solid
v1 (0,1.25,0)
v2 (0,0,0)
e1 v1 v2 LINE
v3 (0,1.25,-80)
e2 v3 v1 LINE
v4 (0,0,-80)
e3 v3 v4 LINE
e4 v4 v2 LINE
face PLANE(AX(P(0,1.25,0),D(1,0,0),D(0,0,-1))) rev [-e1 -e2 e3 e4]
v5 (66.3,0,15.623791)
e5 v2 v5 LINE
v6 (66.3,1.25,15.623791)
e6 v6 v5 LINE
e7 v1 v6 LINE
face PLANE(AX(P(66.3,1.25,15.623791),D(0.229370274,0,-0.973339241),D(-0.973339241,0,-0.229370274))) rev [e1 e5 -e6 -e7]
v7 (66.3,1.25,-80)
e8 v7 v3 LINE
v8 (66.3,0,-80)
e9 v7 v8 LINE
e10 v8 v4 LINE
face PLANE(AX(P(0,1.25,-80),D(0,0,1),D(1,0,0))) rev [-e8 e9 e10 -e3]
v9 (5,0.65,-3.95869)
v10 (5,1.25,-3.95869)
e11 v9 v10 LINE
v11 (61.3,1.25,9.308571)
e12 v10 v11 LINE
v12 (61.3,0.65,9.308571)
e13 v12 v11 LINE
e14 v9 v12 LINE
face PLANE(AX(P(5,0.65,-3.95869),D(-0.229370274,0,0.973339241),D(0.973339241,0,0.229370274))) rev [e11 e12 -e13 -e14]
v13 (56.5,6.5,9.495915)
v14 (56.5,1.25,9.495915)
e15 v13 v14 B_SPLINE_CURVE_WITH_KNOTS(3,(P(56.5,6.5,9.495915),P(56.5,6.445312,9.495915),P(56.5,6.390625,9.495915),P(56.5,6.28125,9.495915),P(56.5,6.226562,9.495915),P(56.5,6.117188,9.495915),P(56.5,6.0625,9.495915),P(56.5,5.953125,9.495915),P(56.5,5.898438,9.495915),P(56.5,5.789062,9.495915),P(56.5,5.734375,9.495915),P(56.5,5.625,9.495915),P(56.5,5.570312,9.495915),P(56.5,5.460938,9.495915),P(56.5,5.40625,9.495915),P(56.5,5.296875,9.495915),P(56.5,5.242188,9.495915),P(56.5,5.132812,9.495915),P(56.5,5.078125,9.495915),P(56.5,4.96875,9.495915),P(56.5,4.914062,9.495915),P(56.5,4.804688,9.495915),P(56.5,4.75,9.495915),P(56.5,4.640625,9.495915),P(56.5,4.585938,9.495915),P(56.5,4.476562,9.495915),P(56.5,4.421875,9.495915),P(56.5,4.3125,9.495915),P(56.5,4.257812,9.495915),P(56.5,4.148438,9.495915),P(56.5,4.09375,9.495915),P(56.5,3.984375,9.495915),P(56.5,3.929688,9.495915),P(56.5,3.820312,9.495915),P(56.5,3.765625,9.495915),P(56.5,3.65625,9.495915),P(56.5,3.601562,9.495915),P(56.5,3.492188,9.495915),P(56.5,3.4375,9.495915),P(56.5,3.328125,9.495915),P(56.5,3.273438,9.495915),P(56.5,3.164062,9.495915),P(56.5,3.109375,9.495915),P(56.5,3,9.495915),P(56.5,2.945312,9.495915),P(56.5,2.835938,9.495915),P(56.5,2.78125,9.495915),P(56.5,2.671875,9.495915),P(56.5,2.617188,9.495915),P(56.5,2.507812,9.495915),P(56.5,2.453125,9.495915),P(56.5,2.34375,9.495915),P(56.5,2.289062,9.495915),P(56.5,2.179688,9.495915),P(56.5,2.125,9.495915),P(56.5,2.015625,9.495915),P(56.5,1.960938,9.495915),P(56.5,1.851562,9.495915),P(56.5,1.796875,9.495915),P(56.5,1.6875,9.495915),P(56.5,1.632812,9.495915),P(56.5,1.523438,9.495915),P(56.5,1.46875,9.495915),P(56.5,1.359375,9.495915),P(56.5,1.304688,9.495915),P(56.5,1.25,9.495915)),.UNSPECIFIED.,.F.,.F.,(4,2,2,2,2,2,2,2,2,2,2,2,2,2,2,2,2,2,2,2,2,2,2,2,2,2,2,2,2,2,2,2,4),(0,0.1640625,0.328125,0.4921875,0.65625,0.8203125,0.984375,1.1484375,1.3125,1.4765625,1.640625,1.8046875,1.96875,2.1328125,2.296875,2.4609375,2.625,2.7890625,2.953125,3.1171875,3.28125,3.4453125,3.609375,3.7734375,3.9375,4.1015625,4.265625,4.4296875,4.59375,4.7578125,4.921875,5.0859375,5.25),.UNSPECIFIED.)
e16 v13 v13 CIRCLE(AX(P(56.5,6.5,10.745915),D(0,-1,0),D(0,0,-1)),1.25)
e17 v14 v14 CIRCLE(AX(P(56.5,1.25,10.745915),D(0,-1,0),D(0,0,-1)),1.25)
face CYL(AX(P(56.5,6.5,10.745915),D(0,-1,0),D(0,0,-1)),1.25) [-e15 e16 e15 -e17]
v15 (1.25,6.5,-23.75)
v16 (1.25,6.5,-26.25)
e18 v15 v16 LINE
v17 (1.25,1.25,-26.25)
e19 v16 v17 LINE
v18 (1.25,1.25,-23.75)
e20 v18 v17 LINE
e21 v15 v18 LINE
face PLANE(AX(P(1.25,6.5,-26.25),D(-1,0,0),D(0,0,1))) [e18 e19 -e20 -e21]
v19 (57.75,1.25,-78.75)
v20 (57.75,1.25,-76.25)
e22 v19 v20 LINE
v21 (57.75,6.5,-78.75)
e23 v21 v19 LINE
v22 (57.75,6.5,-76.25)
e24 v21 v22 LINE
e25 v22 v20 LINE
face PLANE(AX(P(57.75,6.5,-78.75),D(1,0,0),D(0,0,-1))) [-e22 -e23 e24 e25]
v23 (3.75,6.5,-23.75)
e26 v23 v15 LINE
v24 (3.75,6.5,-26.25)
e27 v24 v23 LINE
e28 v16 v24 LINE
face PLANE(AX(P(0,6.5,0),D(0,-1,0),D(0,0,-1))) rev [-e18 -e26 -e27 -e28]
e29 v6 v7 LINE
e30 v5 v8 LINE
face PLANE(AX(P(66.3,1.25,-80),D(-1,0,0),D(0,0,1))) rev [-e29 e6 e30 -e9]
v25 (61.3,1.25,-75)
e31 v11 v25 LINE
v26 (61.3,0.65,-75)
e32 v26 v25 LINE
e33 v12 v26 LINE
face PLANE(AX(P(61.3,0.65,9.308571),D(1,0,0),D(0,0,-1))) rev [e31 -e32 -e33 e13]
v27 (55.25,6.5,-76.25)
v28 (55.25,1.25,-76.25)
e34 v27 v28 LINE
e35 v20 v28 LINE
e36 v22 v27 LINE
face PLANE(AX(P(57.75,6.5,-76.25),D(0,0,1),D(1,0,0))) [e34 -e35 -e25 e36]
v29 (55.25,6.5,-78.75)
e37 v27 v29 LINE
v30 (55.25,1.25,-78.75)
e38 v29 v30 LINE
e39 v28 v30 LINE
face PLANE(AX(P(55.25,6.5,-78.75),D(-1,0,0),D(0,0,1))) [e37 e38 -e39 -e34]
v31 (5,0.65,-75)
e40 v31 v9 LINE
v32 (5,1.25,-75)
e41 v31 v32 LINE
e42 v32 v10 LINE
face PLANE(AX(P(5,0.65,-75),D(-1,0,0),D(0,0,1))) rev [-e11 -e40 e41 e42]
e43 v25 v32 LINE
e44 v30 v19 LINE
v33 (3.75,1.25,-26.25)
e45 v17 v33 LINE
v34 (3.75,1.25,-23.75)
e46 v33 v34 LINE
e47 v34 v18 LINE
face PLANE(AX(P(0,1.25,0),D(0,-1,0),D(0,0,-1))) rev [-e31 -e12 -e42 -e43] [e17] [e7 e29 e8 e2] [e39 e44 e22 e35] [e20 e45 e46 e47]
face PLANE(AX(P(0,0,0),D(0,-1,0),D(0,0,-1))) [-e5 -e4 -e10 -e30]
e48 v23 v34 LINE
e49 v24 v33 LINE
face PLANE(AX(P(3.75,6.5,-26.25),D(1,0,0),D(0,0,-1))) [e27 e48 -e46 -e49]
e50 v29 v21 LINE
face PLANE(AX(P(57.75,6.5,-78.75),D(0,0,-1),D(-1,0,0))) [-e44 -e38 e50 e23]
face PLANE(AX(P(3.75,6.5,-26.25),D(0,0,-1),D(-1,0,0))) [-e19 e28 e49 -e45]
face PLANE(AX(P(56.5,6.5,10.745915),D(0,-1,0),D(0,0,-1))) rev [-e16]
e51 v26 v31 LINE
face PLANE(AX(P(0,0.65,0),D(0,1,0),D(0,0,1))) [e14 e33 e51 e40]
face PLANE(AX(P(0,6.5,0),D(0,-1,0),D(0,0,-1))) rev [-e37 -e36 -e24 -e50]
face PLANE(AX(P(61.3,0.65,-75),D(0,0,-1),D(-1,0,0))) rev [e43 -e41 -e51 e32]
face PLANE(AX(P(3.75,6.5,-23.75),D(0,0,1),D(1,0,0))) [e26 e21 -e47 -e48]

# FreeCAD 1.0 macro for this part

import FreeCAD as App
import Part
import Sketcher

V = App.Vector
Q = App.Units.Quantity

doc = App.newDocument("Part")
body = doc.addObject("PartDesign::Body", "Body")

sketch1 = body.newObject("Sketcher::SketchObject", "Sketch")
sketch1.AttachmentSupport = (doc.getObject("XZ_Plane"), [""])
sketch1.MapMode = "FlatFace"
sketch1.addGeometry(Part.LineSegment(V(0, -80, 0), V(0, 0, 0)), False)
sketch1.addGeometry(Part.LineSegment(V(0, 0, 0), V(66, 16, 0)), False)
sketch1.addGeometry(Part.LineSegment(V(66, 16, 0), V(66, -80, 0)), False)
sketch1.addGeometry(Part.LineSegment(V(66, -80, 0), V(0, -80, 0)), False)
sketch1.addConstraint(Sketcher.Constraint("Coincident", 0, 2, 1, 1))
sketch1.addConstraint(Sketcher.Constraint("Coincident", 1, 2, 2, 1))
sketch1.addConstraint(Sketcher.Constraint("Coincident", 2, 2, 3, 1))
sketch1.addConstraint(Sketcher.Constraint("Coincident", 3, 2, 0, 1))
sketch1.addConstraint(Sketcher.Constraint("Vertical", 0))
sketch1.addConstraint(Sketcher.Constraint("Vertical", 2))
sketch1.addConstraint(Sketcher.Constraint("Horizontal", 3))
sketch1.addConstraint(Sketcher.Constraint("Coincident", 0, 2, -1, 1))
sketch1.addConstraint(Sketcher.Constraint("DistanceY", 0, 1, 0, 2, 80.0))
sketch1.addConstraint(Sketcher.Constraint("DistanceX", 3, 2, 3, 1, 66.3))
sketch1.addConstraint(Sketcher.Constraint("Angle", 1, Q("13.26 deg")))
pad1 = body.newObject("PartDesign::Pad", "Pad")
pad1.Profile = sketch1
pad1.Length = 1.25
pad1.Reversed = True

sketch2 = body.newObject("Sketcher::SketchObject", "Sketch001")
sketch2.AttachmentSupport = (doc.getObject("XZ_Plane"), [""])
sketch2.MapMode = "FlatFace"
sketch2.addGeometry(Part.Circle(V(56.5, 10.7, 0), V(0, 0, 1), 1.2), False)
sketch2.addGeometry(Part.LineSegment(V(55.2, -76.2, 0), V(55.2, -78.8, 0)), False)
sketch2.addGeometry(Part.LineSegment(V(55.2, -78.8, 0), V(57.8, -78.8, 0)), False)
sketch2.addGeometry(Part.LineSegment(V(57.8, -78.8, 0), V(57.8, -76.2, 0)), False)
sketch2.addGeometry(Part.LineSegment(V(57.8, -76.2, 0), V(55.2, -76.2, 0)), False)
sketch2.addGeometry(Part.LineSegment(V(1.2, -23.8, 0), V(1.2, -26.2, 0)), False)
sketch2.addGeometry(Part.LineSegment(V(1.2, -26.2, 0), V(3.8, -26.2, 0)), False)
sketch2.addGeometry(Part.LineSegment(V(3.8, -26.2, 0), V(3.8, -23.8, 0)), False)
sketch2.addGeometry(Part.LineSegment(V(3.8, -23.8, 0), V(1.2, -23.8, 0)), False)
sketch2.addConstraint(Sketcher.Constraint("Coincident", 1, 2, 2, 1))
sketch2.addConstraint(Sketcher.Constraint("Coincident", 2, 2, 3, 1))
sketch2.addConstraint(Sketcher.Constraint("Coincident", 3, 2, 4, 1))
sketch2.addConstraint(Sketcher.Constraint("Coincident", 4, 2, 1, 1))
sketch2.addConstraint(Sketcher.Constraint("Coincident", 5, 2, 6, 1))
sketch2.addConstraint(Sketcher.Constraint("Coincident", 6, 2, 7, 1))
sketch2.addConstraint(Sketcher.Constraint("Coincident", 7, 2, 8, 1))
sketch2.addConstraint(Sketcher.Constraint("Coincident", 8, 2, 5, 1))
sketch2.addConstraint(Sketcher.Constraint("Vertical", 1))
sketch2.addConstraint(Sketcher.Constraint("Horizontal", 2))
sketch2.addConstraint(Sketcher.Constraint("Vertical", 3))
sketch2.addConstraint(Sketcher.Constraint("Horizontal", 4))
sketch2.addConstraint(Sketcher.Constraint("Vertical", 5))
sketch2.addConstraint(Sketcher.Constraint("Horizontal", 6))
sketch2.addConstraint(Sketcher.Constraint("Vertical", 7))
sketch2.addConstraint(Sketcher.Constraint("Horizontal", 8))
sketch2.addConstraint(Sketcher.Constraint("Equal", 4, 6))
sketch2.addConstraint(Sketcher.Constraint("Equal", 8, 1))
sketch2.addConstraint(Sketcher.Constraint("Equal", 3, 5))
sketch2.addConstraint(Sketcher.Constraint("Diameter", 0, 2.5))
sketch2.addConstraint(Sketcher.Constraint("DistanceX", 2, 1, 2, 2, 2.5))
sketch2.addConstraint(Sketcher.Constraint("DistanceX", 5, 2, 4, 2, 54.0))
sketch2.addConstraint(Sketcher.Constraint("DistanceY", 4, 2, 5, 2, 50.0))
sketch2.addConstraint(Sketcher.Constraint("DistanceX", -1, 1, 0, 3, 56.5))
sketch2.addConstraint(Sketcher.Constraint("DistanceX", -1, 1, 1, 2, 55.25))
sketch2.addConstraint(Sketcher.Constraint("DistanceY", 1, 2, -1, 1, 78.75))
sketch2.addConstraint(Sketcher.Constraint("DistanceY", -1, 1, 0, 3, 10.745915))
pad2 = body.newObject("PartDesign::Pad", "Pad001")
pad2.Profile = sketch2
pad2.Length = 6.5
pad2.Reversed = True

sketch3 = body.newObject("Sketcher::SketchObject", "Sketch002")
sketch3.AttachmentSupport = (doc.getObject("XZ_Plane"), [""])
sketch3.MapMode = "FlatFace"
sketch3.AttachmentOffset = App.Placement(V(0, 0, -1.25), App.Rotation())
sketch3.addGeometry(Part.LineSegment(V(5, -75, 0), V(5, -4, 0)), False)
sketch3.addGeometry(Part.LineSegment(V(5, -4, 0), V(61, 9, 0)), False)
sketch3.addGeometry(Part.LineSegment(V(61, 9, 0), V(61, -75, 0)), False)
sketch3.addGeometry(Part.LineSegment(V(61, -75, 0), V(5, -75, 0)), False)
sketch3.addConstraint(Sketcher.Constraint("Coincident", 0, 2, 1, 1))
sketch3.addConstraint(Sketcher.Constraint("Coincident", 1, 2, 2, 1))
sketch3.addConstraint(Sketcher.Constraint("Coincident", 2, 2, 3, 1))
sketch3.addConstraint(Sketcher.Constraint("Coincident", 3, 2, 0, 1))
sketch3.addConstraint(Sketcher.Constraint("Vertical", 0))
sketch3.addConstraint(Sketcher.Constraint("Vertical", 2))
sketch3.addConstraint(Sketcher.Constraint("Horizontal", 3))
sketch3.addConstraint(Sketcher.Constraint("DistanceX", 3, 2, 3, 1, 56.3))
sketch3.addConstraint(Sketcher.Constraint("DistanceX", -1, 1, 0, 2, 5.0))
sketch3.addConstraint(Sketcher.Constraint("DistanceY", 2, 2, -1, 1, 75.0))
sketch3.addConstraint(Sketcher.Constraint("Angle", 1, Q("13.26 deg")))
sketch3.addConstraint(Sketcher.Constraint("DistanceY", 0, 1, 0, 2, 71.04131))
pocket1 = body.newObject("PartDesign::Pocket", "Pocket")
pocket1.Profile = sketch3
pocket1.Length = 0.6
pocket1.Reversed = True

doc.recompute()
